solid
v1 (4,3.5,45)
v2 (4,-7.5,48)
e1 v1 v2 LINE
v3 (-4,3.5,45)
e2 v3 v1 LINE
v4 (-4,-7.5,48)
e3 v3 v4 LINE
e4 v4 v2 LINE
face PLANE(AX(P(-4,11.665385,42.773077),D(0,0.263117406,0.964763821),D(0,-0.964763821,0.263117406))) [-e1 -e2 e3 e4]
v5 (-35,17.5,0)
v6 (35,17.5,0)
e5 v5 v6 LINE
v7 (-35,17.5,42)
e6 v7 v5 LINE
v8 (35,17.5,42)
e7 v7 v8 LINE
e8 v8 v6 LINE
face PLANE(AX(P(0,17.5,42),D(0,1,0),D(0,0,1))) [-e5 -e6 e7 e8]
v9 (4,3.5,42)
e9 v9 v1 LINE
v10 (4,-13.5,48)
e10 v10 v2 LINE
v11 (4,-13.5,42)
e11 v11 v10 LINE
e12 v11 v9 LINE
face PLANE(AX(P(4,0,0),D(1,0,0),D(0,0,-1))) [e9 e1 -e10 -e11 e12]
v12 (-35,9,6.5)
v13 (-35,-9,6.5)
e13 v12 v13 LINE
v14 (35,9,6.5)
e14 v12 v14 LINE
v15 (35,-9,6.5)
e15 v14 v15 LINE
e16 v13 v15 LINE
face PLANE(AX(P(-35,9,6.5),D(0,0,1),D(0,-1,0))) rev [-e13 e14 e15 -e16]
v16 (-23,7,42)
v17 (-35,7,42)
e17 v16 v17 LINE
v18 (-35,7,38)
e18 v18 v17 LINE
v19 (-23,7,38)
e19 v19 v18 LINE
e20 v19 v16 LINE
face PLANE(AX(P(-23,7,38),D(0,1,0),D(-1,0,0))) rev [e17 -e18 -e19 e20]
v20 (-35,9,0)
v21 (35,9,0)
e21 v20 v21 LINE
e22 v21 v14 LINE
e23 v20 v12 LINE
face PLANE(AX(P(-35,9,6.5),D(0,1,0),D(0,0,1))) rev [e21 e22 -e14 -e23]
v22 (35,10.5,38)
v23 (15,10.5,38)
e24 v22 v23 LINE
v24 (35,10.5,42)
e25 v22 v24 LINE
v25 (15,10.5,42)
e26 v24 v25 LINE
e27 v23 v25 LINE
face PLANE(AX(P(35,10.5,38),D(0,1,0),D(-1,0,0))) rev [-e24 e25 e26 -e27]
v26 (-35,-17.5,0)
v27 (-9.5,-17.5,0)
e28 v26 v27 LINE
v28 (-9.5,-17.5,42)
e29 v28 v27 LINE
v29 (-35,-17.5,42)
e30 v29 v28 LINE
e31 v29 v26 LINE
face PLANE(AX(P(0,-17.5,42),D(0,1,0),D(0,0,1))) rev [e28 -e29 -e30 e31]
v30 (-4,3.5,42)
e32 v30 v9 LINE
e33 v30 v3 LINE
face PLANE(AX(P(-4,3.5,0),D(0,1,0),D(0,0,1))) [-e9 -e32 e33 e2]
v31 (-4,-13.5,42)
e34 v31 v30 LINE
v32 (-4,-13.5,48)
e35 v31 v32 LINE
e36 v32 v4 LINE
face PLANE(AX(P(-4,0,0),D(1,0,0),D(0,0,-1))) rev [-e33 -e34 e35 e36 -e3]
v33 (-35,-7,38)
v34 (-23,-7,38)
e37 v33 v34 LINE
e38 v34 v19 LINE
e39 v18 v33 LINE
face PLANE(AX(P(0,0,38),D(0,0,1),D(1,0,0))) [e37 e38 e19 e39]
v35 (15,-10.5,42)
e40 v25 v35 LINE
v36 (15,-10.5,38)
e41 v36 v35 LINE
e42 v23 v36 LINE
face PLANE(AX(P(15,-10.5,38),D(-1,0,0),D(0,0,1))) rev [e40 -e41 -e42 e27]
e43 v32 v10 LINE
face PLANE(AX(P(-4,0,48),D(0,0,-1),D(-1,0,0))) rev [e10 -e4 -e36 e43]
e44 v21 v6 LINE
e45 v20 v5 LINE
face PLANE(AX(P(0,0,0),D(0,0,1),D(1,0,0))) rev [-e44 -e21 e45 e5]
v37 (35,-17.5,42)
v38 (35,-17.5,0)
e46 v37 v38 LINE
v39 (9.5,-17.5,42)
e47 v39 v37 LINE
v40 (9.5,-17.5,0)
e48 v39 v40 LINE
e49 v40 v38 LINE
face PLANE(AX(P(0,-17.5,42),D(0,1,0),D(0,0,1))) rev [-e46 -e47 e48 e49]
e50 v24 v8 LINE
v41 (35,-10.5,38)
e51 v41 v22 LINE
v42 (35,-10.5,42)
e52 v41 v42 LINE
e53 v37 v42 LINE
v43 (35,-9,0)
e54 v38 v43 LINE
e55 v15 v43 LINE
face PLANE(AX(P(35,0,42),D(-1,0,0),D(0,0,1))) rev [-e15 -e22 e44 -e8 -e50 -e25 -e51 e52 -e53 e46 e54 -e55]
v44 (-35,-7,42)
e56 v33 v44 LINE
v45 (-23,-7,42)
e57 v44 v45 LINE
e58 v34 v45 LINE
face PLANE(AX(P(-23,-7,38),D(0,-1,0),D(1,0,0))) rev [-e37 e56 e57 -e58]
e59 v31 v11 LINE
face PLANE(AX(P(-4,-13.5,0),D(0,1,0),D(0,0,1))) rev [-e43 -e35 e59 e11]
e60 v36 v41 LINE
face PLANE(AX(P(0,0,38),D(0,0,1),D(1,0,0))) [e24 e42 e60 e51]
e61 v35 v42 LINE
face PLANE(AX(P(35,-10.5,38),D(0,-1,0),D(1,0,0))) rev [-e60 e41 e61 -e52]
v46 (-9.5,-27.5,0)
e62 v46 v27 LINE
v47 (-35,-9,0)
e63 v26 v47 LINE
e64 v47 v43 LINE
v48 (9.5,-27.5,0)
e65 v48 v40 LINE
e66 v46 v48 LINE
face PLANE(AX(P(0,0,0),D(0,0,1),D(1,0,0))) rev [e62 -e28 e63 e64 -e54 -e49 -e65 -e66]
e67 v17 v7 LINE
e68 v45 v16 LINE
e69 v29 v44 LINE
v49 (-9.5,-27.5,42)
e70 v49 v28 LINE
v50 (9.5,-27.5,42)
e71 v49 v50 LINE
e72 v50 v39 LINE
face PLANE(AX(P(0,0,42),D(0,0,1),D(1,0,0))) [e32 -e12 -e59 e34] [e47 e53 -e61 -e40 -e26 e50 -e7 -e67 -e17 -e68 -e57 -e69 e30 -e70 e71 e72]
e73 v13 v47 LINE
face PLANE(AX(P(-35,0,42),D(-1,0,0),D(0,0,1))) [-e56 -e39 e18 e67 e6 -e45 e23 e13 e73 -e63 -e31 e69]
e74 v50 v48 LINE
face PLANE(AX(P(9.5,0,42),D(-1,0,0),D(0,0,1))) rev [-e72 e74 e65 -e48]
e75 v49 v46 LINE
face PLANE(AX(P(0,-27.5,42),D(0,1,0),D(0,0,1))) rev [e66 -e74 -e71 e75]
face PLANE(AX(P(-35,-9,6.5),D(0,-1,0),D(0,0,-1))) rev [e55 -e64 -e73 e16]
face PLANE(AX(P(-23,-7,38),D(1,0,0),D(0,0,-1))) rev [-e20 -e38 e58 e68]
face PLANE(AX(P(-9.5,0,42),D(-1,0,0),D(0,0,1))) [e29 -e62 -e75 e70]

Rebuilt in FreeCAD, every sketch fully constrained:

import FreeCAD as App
import Part
import Sketcher


def add_polygon(sketch, points):
    """Adds a closed chain of lines whose ends are joined by coincident constraints."""
    first, n = sketch.GeometryCount, len(points)
    for a, b in zip(points, points[1:] + points[:1]):
        sketch.addGeometry(Part.LineSegment(App.Vector(*a, 0), App.Vector(*b, 0)), False)
    for i in range(n):
        sketch.addConstraint(Sketcher.Constraint("Coincident", first + i, 2, first + (i + 1) % n, 1))

doc = App.newDocument("Part")
body = doc.addObject("PartDesign::Body", "Body")

# Sketch on XY plane
sketch1 = doc.addObject("Sketcher::SketchObject", "Sketch")
body.addObject(sketch1)
sketch1.AttachmentSupport = (doc.XY_Plane, [""])
sketch1.MapMode = "FlatFace"
add_polygon(sketch1, [(-10, -18), (-10, -28), (10, -28), (10, -18), (35, -18), (35, 18), (-35, 18), (-35, -18)])  # lines 0-7
sketch1.addConstraint([
    Sketcher.Constraint("Vertical", 0),
    Sketcher.Constraint("Horizontal", 1),
    Sketcher.Constraint("Vertical", 2),
    Sketcher.Constraint("Horizontal", 3),
    Sketcher.Constraint("Vertical", 4),
    Sketcher.Constraint("Horizontal", 5),
    Sketcher.Constraint("Vertical", 6),
    Sketcher.Constraint("Horizontal", 7),
    Sketcher.Constraint("Symmetric", 3, 2, 5, 2, -1, 1),
    Sketcher.Constraint("Symmetric", 2, 2, 7, 2, -2),
    Sketcher.Constraint("DistanceX", 1, 1, 1, 2, 19.0),
    Sketcher.Constraint("DistanceX", 5, 2, 5, 1, 70.0),
    Sketcher.Constraint("DistanceY", 0, 2, 0, 1, 10.0),
    Sketcher.Constraint("DistanceY", 4, 1, 4, 2, 35.0),
])
pad1 = doc.addObject("PartDesign::Pad", "Pad")
body.addObject(pad1)
pad1.Profile = sketch1
pad1.Length = 42

# Sketch on YZ plane
sketch2 = doc.addObject("Sketcher::SketchObject", "Sketch001")
body.addObject(sketch2)
sketch2.AttachmentSupport = (doc.YZ_Plane, [""])
sketch2.MapMode = "FlatFace"
sketch2.AttachmentOffset = App.Placement(App.Vector(0, 0, 35), App.Rotation())
add_polygon(sketch2, [(9, 6), (-9, 6), (-9, 0), (9, 0)])  # lines 0-3
sketch2.addConstraint([
    Sketcher.Constraint("Horizontal", 0),
    Sketcher.Constraint("Vertical", 1),
    Sketcher.Constraint("Horizontal", 2),
    Sketcher.Constraint("Vertical", 3),
    Sketcher.Constraint("Symmetric", 1, 2, 2, 2, -1, 1),
    Sketcher.Constraint("DistanceX", 0, 2, 0, 1, 18.0),
    Sketcher.Constraint("DistanceY", 1, 2, 1, 1, 6.5),
])
pocket1 = doc.addObject("PartDesign::Pocket", "Pocket")
body.addObject(pocket1)
pocket1.Profile = sketch2
pocket1.Type = "ThroughAll"

# Sketch on XY plane
sketch3 = doc.addObject("Sketcher::SketchObject", "Sketch002")
body.addObject(sketch3)
sketch3.AttachmentSupport = (doc.XY_Plane, [""])
sketch3.MapMode = "FlatFace"
sketch3.AttachmentOffset = App.Placement(App.Vector(0, 0, 42), App.Rotation())
add_polygon(sketch3, [(15, 10), (15, -10), (35, -10), (35, 10)])  # lines 0-3
add_polygon(sketch3, [(-35, 7), (-35, -7), (-23, -7), (-23, 7)])  # lines 4-7
sketch3.addConstraint([
    Sketcher.Constraint("Vertical", 0),
    Sketcher.Constraint("Horizontal", 1),
    Sketcher.Constraint("Vertical", 2),
    Sketcher.Constraint("Horizontal", 3),
    Sketcher.Constraint("Vertical", 4),
    Sketcher.Constraint("Horizontal", 5),
    Sketcher.Constraint("Vertical", 6),
    Sketcher.Constraint("Horizontal", 7),
    Sketcher.Constraint("DistanceX", 1, 1, 1, 2, 20.0),
    Sketcher.Constraint("DistanceX", 5, 1, 5, 2, 12.0),
    Sketcher.Constraint("DistanceY", 0, 2, 0, 1, 21.0),
    Sketcher.Constraint("DistanceY", 4, 2, 4, 1, 14.0),
    Sketcher.Constraint("DistanceX", -1, 1, 0, 2, 15.0),
    Sketcher.Constraint("DistanceX", 4, 2, -1, 1, 35.0),
    Sketcher.Constraint("DistanceY", 4, 2, -1, 1, 7.0),
    Sketcher.Constraint("DistanceY", 0, 2, -1, 1, 10.5),
])
pocket2 = doc.addObject("PartDesign::Pocket", "Pocket001")
body.addObject(pocket2)
pocket2.Profile = sketch3
pocket2.Length = 4

# Sketch on YZ plane
sketch4 = doc.addObject("Sketcher::SketchObject", "Sketch003")
body.addObject(sketch4)
sketch4.AttachmentSupport = (doc.YZ_Plane, [""])
sketch4.MapMode = "FlatFace"
add_polygon(sketch4, [(-13.5, 48), (-13.5, 42), (3.5, 42), (3.5, 45), (-7.5, 48)])  # lines 0-4
sketch4.addConstraint([
    Sketcher.Constraint("Vertical", 0),
    Sketcher.Constraint("Horizontal", 1),
    Sketcher.Constraint("Vertical", 2),
    Sketcher.Constraint("Horizontal", 4),
    Sketcher.Constraint("Equal", 4, 0),
    Sketcher.Constraint("DistanceX", 1, 1, 1, 2, 17.0),
    Sketcher.Constraint("DistanceX", 4, 2, 4, 1, 6.0),
    Sketcher.Constraint("DistanceY", 2, 1, 2, 2, 3.0),
    Sketcher.Constraint("DistanceY", -1, 1, 0, 2, 42.0),
    Sketcher.Constraint("DistanceX", 0, 2, -1, 1, 13.5),
])
pad2 = doc.addObject("PartDesign::Pad", "Pad001")
body.addObject(pad2)
pad2.Profile = sketch4
pad2.Type = "TwoLengths"
pad2.Length = 4
pad2.Length2 = 4

doc.recompute()
